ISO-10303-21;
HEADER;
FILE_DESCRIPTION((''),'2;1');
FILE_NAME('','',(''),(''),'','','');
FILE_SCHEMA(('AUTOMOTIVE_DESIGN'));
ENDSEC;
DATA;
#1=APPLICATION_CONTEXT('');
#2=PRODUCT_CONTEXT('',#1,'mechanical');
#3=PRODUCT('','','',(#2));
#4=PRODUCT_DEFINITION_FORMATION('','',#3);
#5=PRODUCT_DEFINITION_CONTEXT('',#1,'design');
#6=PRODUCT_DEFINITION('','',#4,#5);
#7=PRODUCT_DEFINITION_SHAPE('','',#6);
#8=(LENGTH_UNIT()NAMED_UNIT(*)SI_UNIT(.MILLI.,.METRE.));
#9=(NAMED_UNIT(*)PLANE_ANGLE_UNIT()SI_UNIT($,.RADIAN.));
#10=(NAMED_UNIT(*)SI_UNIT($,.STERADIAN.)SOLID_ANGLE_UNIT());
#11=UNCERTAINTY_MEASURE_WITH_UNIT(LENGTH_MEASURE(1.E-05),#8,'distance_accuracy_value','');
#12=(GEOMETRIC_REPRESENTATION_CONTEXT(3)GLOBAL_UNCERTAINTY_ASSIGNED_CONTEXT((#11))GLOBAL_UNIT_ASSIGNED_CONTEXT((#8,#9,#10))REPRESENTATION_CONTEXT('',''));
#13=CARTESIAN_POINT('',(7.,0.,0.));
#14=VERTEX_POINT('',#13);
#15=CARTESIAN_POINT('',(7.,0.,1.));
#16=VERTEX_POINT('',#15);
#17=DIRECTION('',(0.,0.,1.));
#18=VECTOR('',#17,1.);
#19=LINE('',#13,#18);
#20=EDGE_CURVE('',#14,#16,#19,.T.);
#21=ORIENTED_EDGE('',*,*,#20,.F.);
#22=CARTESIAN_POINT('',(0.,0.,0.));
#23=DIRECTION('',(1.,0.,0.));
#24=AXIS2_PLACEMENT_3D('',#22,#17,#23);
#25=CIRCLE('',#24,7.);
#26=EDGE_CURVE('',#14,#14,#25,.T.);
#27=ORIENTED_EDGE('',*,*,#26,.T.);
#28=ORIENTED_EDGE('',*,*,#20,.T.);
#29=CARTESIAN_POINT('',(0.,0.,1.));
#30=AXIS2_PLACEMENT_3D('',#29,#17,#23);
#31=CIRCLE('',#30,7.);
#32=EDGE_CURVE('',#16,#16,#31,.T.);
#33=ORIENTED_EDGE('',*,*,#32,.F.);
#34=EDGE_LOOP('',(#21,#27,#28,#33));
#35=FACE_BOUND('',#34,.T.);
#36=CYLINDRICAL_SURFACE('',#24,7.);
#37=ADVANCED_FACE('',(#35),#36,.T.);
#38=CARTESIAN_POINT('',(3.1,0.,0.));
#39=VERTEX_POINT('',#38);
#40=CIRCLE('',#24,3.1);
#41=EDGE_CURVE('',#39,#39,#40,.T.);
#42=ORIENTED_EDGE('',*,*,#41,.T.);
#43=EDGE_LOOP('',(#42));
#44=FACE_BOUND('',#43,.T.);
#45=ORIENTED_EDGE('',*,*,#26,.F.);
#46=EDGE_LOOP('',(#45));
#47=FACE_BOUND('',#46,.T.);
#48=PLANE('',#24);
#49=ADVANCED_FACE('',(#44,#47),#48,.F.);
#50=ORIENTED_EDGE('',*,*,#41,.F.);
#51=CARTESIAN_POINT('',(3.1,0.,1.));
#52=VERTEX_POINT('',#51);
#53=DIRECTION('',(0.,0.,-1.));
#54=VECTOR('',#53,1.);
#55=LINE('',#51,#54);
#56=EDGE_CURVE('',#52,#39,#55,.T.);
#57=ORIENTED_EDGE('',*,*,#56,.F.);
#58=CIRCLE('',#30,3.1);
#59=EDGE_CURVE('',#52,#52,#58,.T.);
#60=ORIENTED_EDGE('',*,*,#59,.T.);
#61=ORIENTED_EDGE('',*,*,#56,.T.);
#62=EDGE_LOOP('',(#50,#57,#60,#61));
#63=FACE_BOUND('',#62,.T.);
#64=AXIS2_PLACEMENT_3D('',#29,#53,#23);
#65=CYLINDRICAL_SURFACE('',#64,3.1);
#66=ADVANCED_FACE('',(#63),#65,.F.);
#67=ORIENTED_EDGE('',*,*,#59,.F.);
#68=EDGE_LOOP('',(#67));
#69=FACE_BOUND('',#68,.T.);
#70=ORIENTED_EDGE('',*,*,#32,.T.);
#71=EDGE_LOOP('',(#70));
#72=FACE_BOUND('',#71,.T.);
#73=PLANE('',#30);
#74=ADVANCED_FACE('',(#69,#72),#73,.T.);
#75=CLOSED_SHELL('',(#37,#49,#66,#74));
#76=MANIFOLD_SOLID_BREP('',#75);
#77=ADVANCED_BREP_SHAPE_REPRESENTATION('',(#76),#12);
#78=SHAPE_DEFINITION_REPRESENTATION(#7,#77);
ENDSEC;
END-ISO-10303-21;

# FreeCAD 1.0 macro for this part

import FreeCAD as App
import Part
import Sketcher

V = App.Vector
Q = App.Units.Quantity

doc = App.newDocument("Part")
body = doc.addObject("PartDesign::Body", "Body")

# Sketch on XZ plane
sketch1 = body.newObject("Sketcher::SketchObject", "Sketch")
sketch1.AttachmentSupport = (doc.getObject("XZ_Plane"), [""])
sketch1.MapMode = "FlatFace"
sketch1.addGeometry([
    Part.LineSegment(V(3.1, 0, 0), V(3.1, 1, 0)),
    Part.LineSegment(V(3.1, 1, 0), V(7, 1, 0)),
    Part.LineSegment(V(7, 1, 0), V(7, 0, 0)),
    Part.LineSegment(V(7, 0, 0), V(3.1, 0, 0)),
], False)
sketch1.addConstraint([
    Sketcher.Constraint("Coincident", 0, 2, 1, 1),
    Sketcher.Constraint("Coincident", 1, 2, 2, 1),
    Sketcher.Constraint("Coincident", 2, 2, 3, 1),
    Sketcher.Constraint("Coincident", 3, 2, 0, 1),
    Sketcher.Constraint("Vertical", 0),
    Sketcher.Constraint("Horizontal", 1),
    Sketcher.Constraint("Vertical", 2),
    Sketcher.Constraint("Horizontal", 3),
    Sketcher.Constraint("PointOnObject", 2, 2, -1),
    Sketcher.Constraint("DistanceY", 0, 1, 0, 2, Q("1 mm")),
    Sketcher.Constraint("DistanceX", 1, 1, 1, 2, Q("3.9 mm")),
    Sketcher.Constraint("DistanceX", -1, 1, 1, 2, Q("7 mm")),
])
revolution = body.newObject("PartDesign::Revolution", "Revolution")
revolution.Profile = sketch1
revolution.ReferenceAxis = (sketch1, ["V_Axis"])
revolution.Angle = 360

doc.recompute()
